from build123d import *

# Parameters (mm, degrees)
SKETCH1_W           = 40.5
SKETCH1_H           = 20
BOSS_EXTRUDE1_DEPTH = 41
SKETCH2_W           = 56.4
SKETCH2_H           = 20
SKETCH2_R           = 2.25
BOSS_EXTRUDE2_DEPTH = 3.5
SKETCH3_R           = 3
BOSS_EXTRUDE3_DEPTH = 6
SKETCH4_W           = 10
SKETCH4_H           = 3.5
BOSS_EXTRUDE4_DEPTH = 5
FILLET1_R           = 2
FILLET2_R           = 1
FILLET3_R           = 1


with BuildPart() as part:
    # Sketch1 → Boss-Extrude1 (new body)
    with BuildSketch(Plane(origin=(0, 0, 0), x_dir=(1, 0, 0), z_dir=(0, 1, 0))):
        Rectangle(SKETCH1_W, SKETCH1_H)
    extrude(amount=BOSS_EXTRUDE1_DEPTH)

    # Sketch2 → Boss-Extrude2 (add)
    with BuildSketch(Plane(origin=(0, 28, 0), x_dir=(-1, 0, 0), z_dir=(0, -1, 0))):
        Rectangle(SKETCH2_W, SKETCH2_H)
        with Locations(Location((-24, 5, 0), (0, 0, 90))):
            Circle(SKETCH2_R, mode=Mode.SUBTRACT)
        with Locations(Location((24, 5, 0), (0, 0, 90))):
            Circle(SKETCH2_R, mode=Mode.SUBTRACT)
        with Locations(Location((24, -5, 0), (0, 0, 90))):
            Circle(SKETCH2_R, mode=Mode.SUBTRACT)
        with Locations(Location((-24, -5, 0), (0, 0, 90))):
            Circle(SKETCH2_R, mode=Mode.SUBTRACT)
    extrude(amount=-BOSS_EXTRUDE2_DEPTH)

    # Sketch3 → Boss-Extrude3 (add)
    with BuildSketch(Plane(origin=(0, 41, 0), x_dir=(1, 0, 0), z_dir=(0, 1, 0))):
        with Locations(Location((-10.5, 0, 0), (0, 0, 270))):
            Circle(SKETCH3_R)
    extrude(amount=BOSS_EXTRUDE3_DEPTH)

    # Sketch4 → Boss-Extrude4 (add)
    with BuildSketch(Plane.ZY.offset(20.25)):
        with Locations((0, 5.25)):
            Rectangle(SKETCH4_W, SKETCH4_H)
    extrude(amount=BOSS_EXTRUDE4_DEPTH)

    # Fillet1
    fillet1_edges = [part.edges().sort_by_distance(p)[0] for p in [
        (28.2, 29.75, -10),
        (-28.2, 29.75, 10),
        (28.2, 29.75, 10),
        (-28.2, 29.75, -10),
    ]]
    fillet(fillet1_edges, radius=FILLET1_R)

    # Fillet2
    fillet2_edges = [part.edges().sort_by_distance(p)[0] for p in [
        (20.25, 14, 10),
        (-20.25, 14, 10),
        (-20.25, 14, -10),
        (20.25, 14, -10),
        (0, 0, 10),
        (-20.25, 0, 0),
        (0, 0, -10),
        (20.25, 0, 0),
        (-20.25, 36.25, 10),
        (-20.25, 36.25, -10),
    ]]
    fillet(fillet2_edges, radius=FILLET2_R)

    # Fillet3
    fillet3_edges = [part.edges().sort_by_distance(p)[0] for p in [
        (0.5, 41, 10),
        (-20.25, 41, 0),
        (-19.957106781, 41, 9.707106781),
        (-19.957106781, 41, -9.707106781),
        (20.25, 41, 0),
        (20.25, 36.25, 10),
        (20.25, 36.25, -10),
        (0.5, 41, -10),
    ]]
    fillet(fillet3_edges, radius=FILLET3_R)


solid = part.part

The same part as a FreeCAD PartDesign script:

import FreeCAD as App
import Part
import Sketcher
from FreeCAD import Vector


def edges_at(feature, points):
    """Names of the edges that pass closest to the given points."""
    edges = feature.Shape.Edges
    near = lambda p: min(range(len(edges)), key=lambda i: edges[i].distToShape(Part.Vertex(*p))[0])
    return sorted({f"Edge{near(p) + 1}" for p in points})


def add_polygon(sketch, points):
    """Adds a closed chain of lines whose ends are joined by coincident constraints."""
    first, n = sketch.GeometryCount, len(points)
    for a, b in zip(points, points[1:] + points[:1]):
        sketch.addGeometry(Part.LineSegment(App.Vector(*a, 0), App.Vector(*b, 0)), False)
    for i in range(n):
        sketch.addConstraint(Sketcher.Constraint("Coincident", first + i, 2, first + (i + 1) % n, 1))

doc = App.newDocument("Part")
params = doc.addObject("Spreadsheet::Sheet", "Params")
for row, (alias, value) in enumerate([
    ("sketch1_height", "20 mm"),
    ("sketch1_width", "40.5 mm"),
    ("pad1_length", "41 mm"),
    ("sketch2_diameter", "4.5 mm"),
    ("sketch2_height", "20 mm"),
    ("sketch2_width", "56.4 mm"),
    ("pad2_length", "3.5 mm"),
    ("sketch3_diameter", "6 mm"),
    ("pad3_length", "6 mm"),
    ("sketch4_height", "10 mm"),
    ("sketch4_width", "3.5 mm"),
    ("pad4_length", "5 mm"),
    ("fillet_radius", "2 mm"),
    ("fillet2_radius", "1 mm"),
    ("fillet3_radius", "1 mm"),
], start=1):
    params.set(f"A{row}", alias)
    params.set(f"B{row}", "=" + value)
    params.setAlias(f"B{row}", alias)

body = doc.addObject("PartDesign::Body", "Body")

sketch1 = body.newObject("Sketcher::SketchObject", "Sketch")
sketch1.AttachmentSupport = (doc.getObject("XZ_Plane"), [""])
sketch1.MapMode = "FlatFace"
add_polygon(sketch1, [(-20, -10), (-20, 10), (20, 10), (20, -10)])
sketch1.addConstraint(Sketcher.Constraint("Vertical", 0))
sketch1.addConstraint(Sketcher.Constraint("Horizontal", 1))
sketch1.addConstraint(Sketcher.Constraint("Vertical", 2))
sketch1.addConstraint(Sketcher.Constraint("Horizontal", 3))
sketch1.addConstraint(Sketcher.Constraint("Symmetric", 0, 2, 2, 2, -1, 1))
sketch1.addConstraint(Sketcher.Constraint("DistanceY", 0, 1, 0, 2, 20.0))
sketch1.addConstraint(Sketcher.Constraint("DistanceX", 1, 1, 1, 2, 40.5))
sketch1.setExpression("Constraints[9]", "Params.sketch1_height")
sketch1.setExpression("Constraints[10]", "Params.sketch1_width")
pad1 = body.newObject("PartDesign::Pad", "Pad")
pad1.Profile = sketch1
pad1.setExpression("Length", "Params.pad1_length")
pad1.Reversed = True

sketch2 = body.newObject("Sketcher::SketchObject", "Sketch001")
sketch2.AttachmentSupport = (doc.getObject("XZ_Plane"), [""])
sketch2.MapMode = "FlatFace"
sketch2.AttachmentOffset = App.Placement(Vector(0, 0, -28), App.Rotation())
add_polygon(sketch2, [(28.2, -10), (28.2, 10), (-28.2, 10), (-28.2, -10)])
sketch2.addGeometry(Part.Circle(Vector(24, 5, 0), Vector(0, 0, 1), 2.2), False)
sketch2.addGeometry(Part.Circle(Vector(-24, 5, 0), Vector(0, 0, 1), 2.2), False)
sketch2.addGeometry(Part.Circle(Vector(24, -5, 0), Vector(0, 0, 1), 2.2), False)
sketch2.addGeometry(Part.Circle(Vector(-24, -5, 0), Vector(0, 0, 1), 2.2), False)
sketch2.addConstraint(Sketcher.Constraint("Vertical", 0))
sketch2.addConstraint(Sketcher.Constraint("Horizontal", 1))
sketch2.addConstraint(Sketcher.Constraint("Vertical", 2))
sketch2.addConstraint(Sketcher.Constraint("Horizontal", 3))
sketch2.addConstraint(Sketcher.Constraint("Equal", 4, 5))
sketch2.addConstraint(Sketcher.Constraint("Equal", 5, 6))
sketch2.addConstraint(Sketcher.Constraint("Equal", 6, 7))
sketch2.addConstraint(Sketcher.Constraint("Symmetric", 5, 3, 6, 3, -1, 1))
sketch2.addConstraint(Sketcher.Constraint("Symmetric", 4, 3, 7, 3, -1, 1))
sketch2.addConstraint(Sketcher.Constraint("Symmetric", 0, 2, 2, 2, -1, 1))
sketch2.addConstraint(Sketcher.Constraint("Symmetric", 4, 3, 5, 3, -2))
sketch2.addConstraint(Sketcher.Constraint("Diameter", 4, 4.5))
sketch2.addConstraint(Sketcher.Constraint("DistanceY", 0, 1, 0, 2, 20.0))
sketch2.addConstraint(Sketcher.Constraint("DistanceX", 1, 2, 1, 1, 56.4))
sketch2.addConstraint(Sketcher.Constraint("DistanceX", -1, 1, 4, 3, 24.0))
sketch2.addConstraint(Sketcher.Constraint("DistanceY", -1, 1, 4, 3, 5.0))
sketch2.setExpression("Constraints[15]", "Params.sketch2_diameter")
sketch2.setExpression("Constraints[16]", "Params.sketch2_height")
sketch2.setExpression("Constraints[17]", "Params.sketch2_width")
pad2 = body.newObject("PartDesign::Pad", "Pad001")
pad2.Profile = sketch2
pad2.setExpression("Length", "Params.pad2_length")
pad2.Reversed = True

sketch3 = body.newObject("Sketcher::SketchObject", "Sketch002")
sketch3.AttachmentSupport = (doc.getObject("XZ_Plane"), [""])
sketch3.MapMode = "FlatFace"
sketch3.AttachmentOffset = App.Placement(Vector(0, 0, -41), App.Rotation())
sketch3.addGeometry(Part.Circle(Vector(-10.5, 0, 0), Vector(0, 0, 1), 3), False)
sketch3.addConstraint(Sketcher.Constraint("PointOnObject", 0, 3, -1))
sketch3.addConstraint(Sketcher.Constraint("Diameter", 0, 6.0))
sketch3.addConstraint(Sketcher.Constraint("DistanceX", 0, 3, -1, 1, 10.5))
sketch3.setExpression("Constraints[1]", "Params.sketch3_diameter")
pad3 = body.newObject("PartDesign::Pad", "Pad002")
pad3.Profile = sketch3
pad3.setExpression("Length", "Params.pad3_length")
pad3.Reversed = True

sketch4 = body.newObject("Sketcher::SketchObject", "Sketch003")
sketch4.AttachmentSupport = (doc.getObject("YZ_Plane"), [""])
sketch4.MapMode = "FlatFace"
sketch4.AttachmentOffset = App.Placement(Vector(0, 0, -20.25), App.Rotation())
add_polygon(sketch4, [(7, -5), (3.5, -5), (3.5, 5), (7, 5)])
sketch4.addConstraint(Sketcher.Constraint("Horizontal", 0))
sketch4.addConstraint(Sketcher.Constraint("Vertical", 1))
sketch4.addConstraint(Sketcher.Constraint("Horizontal", 2))
sketch4.addConstraint(Sketcher.Constraint("Vertical", 3))
sketch4.addConstraint(Sketcher.Constraint("DistanceY", 1, 1, 1, 2, 10.0))
sketch4.addConstraint(Sketcher.Constraint("DistanceX", 0, 2, 0, 1, 3.5))
sketch4.addConstraint(Sketcher.Constraint("DistanceY", 0, 2, -1, 1, 5.0))
sketch4.addConstraint(Sketcher.Constraint("DistanceX", -1, 1, 2, 2, 7.0))
sketch4.setExpression("Constraints[8]", "Params.sketch4_height")
sketch4.setExpression("Constraints[9]", "Params.sketch4_width")
pad4 = body.newObject("PartDesign::Pad", "Pad003")
pad4.Profile = sketch4
pad4.setExpression("Length", "Params.pad4_length")
pad4.Reversed = True
doc.recompute()

fillet = body.newObject("PartDesign::Fillet", "Fillet")
fillet.Base = (pad4, edges_at(pad4, [
    (28.2, 29.75, -10),
    (-28.2, 29.75, 10),
    (28.2, 29.75, 10),
    (-28.2, 29.75, -10),
]))
fillet.setExpression("Radius", "Params.fillet_radius")
doc.recompute()

fillet2 = body.newObject("PartDesign::Fillet", "Fillet001")
fillet2.Base = (fillet, edges_at(fillet, [
    (20.25, 14, 10),
    (-20.25, 14, 10),
    (-20.25, 14, -10),
    (20.25, 14, -10),
    (0, 0, 10),
    (-20.25, 0, 0),
    (0, 0, -10),
    (20.25, 0, 0),
    (-20.25, 36.25, 10),
    (-20.25, 36.25, -10),
]))
fillet2.setExpression("Radius", "Params.fillet2_radius")
doc.recompute()

fillet3 = body.newObject("PartDesign::Fillet", "Fillet002")
fillet3.Base = (fillet2, edges_at(fillet2, [
    (0.5, 41, 10),
    (-20.25, 41, 0),
    (-19.957, 41, 9.707),
    (-19.957, 41, -9.707),
    (20.25, 41, 0),
    (20.25, 36.25, 10),
    (20.25, 36.25, -10),
    (0.5, 41, -10),
]))
fillet3.setExpression("Radius", "Params.fillet3_radius")

doc.recompute()
